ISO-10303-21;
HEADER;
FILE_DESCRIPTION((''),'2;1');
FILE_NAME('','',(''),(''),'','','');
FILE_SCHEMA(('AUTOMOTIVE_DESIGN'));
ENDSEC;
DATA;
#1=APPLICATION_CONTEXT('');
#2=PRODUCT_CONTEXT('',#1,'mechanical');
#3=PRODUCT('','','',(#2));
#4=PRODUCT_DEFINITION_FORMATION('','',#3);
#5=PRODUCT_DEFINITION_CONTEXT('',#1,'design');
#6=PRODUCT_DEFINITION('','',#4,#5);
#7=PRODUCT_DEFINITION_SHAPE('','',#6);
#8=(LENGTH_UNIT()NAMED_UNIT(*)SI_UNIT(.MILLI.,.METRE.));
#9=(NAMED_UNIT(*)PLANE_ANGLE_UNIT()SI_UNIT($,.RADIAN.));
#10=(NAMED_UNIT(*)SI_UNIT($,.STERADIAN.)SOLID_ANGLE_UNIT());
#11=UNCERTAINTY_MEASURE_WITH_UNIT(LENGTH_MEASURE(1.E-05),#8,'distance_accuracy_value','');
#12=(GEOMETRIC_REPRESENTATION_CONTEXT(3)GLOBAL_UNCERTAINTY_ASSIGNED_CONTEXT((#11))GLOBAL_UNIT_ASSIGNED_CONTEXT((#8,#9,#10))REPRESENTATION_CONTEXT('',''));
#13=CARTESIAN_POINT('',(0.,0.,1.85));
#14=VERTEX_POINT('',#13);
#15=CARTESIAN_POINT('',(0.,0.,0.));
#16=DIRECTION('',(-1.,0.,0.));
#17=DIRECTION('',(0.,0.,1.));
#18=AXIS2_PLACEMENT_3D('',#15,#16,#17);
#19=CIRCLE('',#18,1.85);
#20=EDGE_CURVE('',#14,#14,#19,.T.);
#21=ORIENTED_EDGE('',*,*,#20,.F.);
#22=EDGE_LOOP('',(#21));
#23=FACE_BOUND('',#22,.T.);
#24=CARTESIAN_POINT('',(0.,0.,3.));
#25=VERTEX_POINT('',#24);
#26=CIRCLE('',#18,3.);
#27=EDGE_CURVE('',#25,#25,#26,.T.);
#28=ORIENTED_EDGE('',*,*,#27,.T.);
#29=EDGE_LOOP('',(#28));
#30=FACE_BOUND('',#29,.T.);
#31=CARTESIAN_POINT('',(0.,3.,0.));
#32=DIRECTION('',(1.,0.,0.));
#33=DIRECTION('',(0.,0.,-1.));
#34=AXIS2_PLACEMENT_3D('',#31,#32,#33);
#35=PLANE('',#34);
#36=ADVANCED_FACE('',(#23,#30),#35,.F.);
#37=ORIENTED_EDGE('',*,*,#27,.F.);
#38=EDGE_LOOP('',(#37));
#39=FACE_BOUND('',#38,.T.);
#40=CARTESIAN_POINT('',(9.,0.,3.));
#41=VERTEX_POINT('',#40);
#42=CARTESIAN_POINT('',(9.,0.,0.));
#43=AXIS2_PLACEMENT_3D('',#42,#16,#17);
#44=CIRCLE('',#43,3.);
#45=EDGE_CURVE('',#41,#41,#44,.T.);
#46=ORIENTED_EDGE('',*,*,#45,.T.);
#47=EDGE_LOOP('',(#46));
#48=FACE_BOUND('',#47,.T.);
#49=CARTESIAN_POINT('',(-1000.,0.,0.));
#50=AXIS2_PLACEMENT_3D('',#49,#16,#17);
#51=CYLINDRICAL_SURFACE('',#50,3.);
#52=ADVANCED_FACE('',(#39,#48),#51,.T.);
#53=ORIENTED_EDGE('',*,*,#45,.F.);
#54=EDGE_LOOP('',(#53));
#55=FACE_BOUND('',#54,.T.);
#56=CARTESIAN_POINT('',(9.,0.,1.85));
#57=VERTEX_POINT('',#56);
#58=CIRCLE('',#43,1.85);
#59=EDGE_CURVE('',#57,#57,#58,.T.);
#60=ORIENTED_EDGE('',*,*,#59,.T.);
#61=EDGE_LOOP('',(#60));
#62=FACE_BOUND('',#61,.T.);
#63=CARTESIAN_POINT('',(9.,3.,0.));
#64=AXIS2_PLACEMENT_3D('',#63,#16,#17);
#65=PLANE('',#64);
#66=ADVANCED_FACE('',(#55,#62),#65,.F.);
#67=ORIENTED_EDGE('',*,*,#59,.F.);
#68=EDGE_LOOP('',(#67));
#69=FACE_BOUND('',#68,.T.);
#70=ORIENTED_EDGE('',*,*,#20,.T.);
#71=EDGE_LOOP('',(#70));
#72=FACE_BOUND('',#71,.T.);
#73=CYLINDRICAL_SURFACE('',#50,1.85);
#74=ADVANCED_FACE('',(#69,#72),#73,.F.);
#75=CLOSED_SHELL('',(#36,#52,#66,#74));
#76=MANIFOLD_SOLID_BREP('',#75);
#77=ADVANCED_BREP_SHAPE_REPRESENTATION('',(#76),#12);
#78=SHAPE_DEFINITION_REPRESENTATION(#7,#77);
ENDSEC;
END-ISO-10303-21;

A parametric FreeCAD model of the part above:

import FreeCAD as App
import Part
import Sketcher
from FreeCAD import Vector
Q = App.Units.Quantity

doc = App.newDocument("Part")
params = doc.addObject("Spreadsheet::Sheet", "Params")
for row, (alias, value) in enumerate([
    ("sketch1_width", "9 mm"),
    ("sketch1_height", "1.15 mm"),
    ("revolution_angle", "360 deg"),
], start=1):
    params.set(f"A{row}", alias)
    params.set(f"B{row}", "=" + value)
    params.setAlias(f"B{row}", alias)

body = doc.addObject("PartDesign::Body", "Body")

# Sketch on XY plane
sketch1 = body.newObject("Sketcher::SketchObject", "Sketch")
sketch1.AttachmentSupport = (doc.getObject("XY_Plane"), [""])
sketch1.MapMode = "FlatFace"
sketch1.addGeometry([
    Part.LineSegment(Vector(0, 3, 0), Vector(0, 1.9, 0)),
    Part.LineSegment(Vector(0, 1.9, 0), Vector(9, 1.9, 0)),
    Part.LineSegment(Vector(9, 1.9, 0), Vector(9, 3, 0)),
    Part.LineSegment(Vector(9, 3, 0), Vector(0, 3, 0)),
], False)
sketch1.addConstraint([
    Sketcher.Constraint("Coincident", 0, 2, 1, 1),
    Sketcher.Constraint("Coincident", 1, 2, 2, 1),
    Sketcher.Constraint("Coincident", 2, 2, 3, 1),
    Sketcher.Constraint("Coincident", 3, 2, 0, 1),
    Sketcher.Constraint("Vertical", 0),
    Sketcher.Constraint("Horizontal", 1),
    Sketcher.Constraint("Vertical", 2),
    Sketcher.Constraint("Horizontal", 3),
    Sketcher.Constraint("PointOnObject", 0, 2, -2),
    Sketcher.Constraint("DistanceX", 1, 1, 1, 2, Q("9 mm")),
    Sketcher.Constraint("DistanceY", -1, 1, 2, 2, Q("3 mm")),
    Sketcher.Constraint("DistanceY", 0, 2, 0, 1, Q("1.15 mm")),
])
sketch1.setExpression("Constraints[9]", "Params.sketch1_width")
sketch1.setExpression("Constraints[11]", "Params.sketch1_height")
revolution = body.newObject("PartDesign::Revolution", "Revolution")
revolution.Profile = sketch1
revolution.ReferenceAxis = (sketch1, ["H_Axis"])
revolution.setExpression("Angle", "Params.revolution_angle")

doc.recompute()
